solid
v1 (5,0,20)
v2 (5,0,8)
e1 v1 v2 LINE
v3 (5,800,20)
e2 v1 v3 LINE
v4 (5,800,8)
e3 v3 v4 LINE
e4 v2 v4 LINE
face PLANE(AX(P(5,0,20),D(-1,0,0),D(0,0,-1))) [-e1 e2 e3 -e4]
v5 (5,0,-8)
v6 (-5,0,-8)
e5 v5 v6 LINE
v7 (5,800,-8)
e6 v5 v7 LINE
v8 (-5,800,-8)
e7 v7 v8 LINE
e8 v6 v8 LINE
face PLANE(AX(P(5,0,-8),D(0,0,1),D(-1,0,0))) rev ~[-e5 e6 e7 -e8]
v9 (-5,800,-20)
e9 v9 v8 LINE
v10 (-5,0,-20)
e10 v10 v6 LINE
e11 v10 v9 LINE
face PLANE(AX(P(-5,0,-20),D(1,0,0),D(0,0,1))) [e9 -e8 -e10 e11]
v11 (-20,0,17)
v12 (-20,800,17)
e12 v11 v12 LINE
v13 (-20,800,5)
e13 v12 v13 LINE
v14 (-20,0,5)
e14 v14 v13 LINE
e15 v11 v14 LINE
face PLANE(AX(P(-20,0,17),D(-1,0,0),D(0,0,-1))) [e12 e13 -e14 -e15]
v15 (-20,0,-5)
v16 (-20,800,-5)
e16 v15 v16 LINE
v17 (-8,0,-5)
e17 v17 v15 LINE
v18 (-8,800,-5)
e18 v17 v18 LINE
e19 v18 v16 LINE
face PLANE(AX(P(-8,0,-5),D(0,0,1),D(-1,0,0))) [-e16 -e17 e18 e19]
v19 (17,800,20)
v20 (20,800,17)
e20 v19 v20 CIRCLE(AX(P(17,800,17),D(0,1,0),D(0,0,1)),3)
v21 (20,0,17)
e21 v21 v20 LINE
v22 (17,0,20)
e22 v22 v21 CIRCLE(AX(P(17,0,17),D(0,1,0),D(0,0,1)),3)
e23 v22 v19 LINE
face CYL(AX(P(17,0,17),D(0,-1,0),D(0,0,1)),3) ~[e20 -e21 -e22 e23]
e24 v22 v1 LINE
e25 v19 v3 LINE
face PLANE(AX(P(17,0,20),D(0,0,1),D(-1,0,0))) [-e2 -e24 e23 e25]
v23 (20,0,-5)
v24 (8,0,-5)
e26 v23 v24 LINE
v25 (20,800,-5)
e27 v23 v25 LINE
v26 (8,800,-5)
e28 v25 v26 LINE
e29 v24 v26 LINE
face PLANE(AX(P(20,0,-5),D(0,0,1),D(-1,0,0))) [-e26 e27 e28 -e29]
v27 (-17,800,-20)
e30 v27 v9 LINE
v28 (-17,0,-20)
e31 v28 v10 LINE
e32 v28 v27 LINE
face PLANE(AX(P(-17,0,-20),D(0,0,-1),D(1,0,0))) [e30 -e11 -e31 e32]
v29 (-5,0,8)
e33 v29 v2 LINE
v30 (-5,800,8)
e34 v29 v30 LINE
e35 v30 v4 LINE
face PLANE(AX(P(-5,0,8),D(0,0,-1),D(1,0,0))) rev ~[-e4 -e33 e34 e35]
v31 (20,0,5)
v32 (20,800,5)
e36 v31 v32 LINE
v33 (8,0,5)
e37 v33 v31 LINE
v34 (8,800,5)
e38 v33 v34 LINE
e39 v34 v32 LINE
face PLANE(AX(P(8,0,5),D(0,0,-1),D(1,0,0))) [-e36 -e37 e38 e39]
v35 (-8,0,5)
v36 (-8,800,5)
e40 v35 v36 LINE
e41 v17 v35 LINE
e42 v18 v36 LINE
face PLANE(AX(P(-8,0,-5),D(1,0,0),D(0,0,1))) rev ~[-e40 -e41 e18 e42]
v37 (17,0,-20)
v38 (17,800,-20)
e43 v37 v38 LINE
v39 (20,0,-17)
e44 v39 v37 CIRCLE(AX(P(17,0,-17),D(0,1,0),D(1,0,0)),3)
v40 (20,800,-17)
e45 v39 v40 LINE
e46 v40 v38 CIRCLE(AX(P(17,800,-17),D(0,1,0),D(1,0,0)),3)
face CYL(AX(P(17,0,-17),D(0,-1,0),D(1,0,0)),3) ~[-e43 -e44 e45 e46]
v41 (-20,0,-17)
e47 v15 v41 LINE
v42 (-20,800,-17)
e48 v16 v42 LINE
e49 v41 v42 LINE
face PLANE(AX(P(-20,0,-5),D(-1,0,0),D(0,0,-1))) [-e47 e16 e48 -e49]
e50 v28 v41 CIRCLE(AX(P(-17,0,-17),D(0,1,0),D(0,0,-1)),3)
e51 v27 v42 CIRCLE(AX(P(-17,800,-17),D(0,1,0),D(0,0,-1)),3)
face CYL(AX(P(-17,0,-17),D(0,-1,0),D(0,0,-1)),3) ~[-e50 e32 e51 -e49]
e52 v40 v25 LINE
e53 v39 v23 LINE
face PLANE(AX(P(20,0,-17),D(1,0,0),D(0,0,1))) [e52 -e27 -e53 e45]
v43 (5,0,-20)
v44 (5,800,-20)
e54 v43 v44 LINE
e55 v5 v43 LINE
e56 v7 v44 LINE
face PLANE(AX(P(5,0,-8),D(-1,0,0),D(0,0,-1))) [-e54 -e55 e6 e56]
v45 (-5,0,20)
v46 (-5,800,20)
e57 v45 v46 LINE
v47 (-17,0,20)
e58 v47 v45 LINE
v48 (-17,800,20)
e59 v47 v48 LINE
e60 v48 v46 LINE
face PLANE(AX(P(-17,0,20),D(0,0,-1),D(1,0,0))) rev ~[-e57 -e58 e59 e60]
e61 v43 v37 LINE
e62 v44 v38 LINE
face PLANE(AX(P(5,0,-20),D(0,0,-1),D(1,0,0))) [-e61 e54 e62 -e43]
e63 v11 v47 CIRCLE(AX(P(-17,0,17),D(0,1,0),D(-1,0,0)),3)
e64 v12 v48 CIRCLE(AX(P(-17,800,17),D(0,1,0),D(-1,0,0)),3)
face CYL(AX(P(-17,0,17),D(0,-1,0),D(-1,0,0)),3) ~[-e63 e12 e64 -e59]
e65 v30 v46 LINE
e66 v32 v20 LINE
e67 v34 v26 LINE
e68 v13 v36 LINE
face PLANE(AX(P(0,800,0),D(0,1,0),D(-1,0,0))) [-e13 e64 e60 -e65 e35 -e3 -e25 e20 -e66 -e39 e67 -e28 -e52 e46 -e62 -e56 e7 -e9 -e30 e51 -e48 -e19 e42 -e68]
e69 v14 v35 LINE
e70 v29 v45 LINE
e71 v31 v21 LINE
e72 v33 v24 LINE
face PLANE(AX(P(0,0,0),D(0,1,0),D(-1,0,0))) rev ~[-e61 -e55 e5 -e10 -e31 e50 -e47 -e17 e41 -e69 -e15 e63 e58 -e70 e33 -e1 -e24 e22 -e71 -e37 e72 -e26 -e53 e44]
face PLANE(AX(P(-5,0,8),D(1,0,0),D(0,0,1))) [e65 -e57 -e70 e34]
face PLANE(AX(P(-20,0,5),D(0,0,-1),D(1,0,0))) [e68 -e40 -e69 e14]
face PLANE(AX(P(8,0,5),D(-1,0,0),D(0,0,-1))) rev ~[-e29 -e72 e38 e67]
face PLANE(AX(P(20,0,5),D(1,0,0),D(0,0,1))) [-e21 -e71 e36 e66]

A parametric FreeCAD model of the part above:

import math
import FreeCAD as App
import Part
import Sketcher
Q = App.Units.Quantity

doc = App.newDocument("Part")
body = doc.addObject("PartDesign::Body", "Body")

# Sketch on XZ plane
sketch1 = body.newObject("Sketcher::SketchObject", "Sketch")
sketch1.AttachmentSupport = (doc.getObject("XZ_Plane"), [""])
sketch1.MapMode = "FlatFace"
sketch1.addGeometry([
    Part.LineSegment(App.Vector(5, 8, 0), App.Vector(5, 20, 0)),  # 0
    Part.LineSegment(App.Vector(5, 20, 0), App.Vector(17, 20, 0)),  # 1
    Part.ArcOfCircle(Part.Circle(App.Vector(17, 17, 0), App.Vector(0, 0, 1), 3), math.radians(0), math.radians(90)),  # 2
    Part.LineSegment(App.Vector(20, 17, 0), App.Vector(20, 5, 0)),  # 3
    Part.LineSegment(App.Vector(20, 5, 0), App.Vector(8, 5, 0)),  # 4
    Part.LineSegment(App.Vector(8, 5, 0), App.Vector(8, -5, 0)),  # 5
    Part.LineSegment(App.Vector(8, -5, 0), App.Vector(20, -5, 0)),  # 6
    Part.LineSegment(App.Vector(20, -5, 0), App.Vector(20, -17, 0)),  # 7
    Part.ArcOfCircle(Part.Circle(App.Vector(17, -17, 0), App.Vector(0, 0, 1), 3), math.radians(-90), math.radians(0)),  # 8
    Part.LineSegment(App.Vector(17, -20, 0), App.Vector(5, -20, 0)),  # 9
    Part.LineSegment(App.Vector(5, -20, 0), App.Vector(5, -8, 0)),  # 10
    Part.LineSegment(App.Vector(5, -8, 0), App.Vector(-5, -8, 0)),  # 11
    Part.LineSegment(App.Vector(-5, -8, 0), App.Vector(-5, -20, 0)),  # 12
    Part.LineSegment(App.Vector(-5, -20, 0), App.Vector(-17, -20, 0)),  # 13
    Part.ArcOfCircle(Part.Circle(App.Vector(-17, -17, 0), App.Vector(0, 0, 1), 3), math.radians(180), math.radians(270)),  # 14
    Part.LineSegment(App.Vector(-20, -17, 0), App.Vector(-20, -5, 0)),  # 15
    Part.LineSegment(App.Vector(-20, -5, 0), App.Vector(-8, -5, 0)),  # 16
    Part.LineSegment(App.Vector(-8, -5, 0), App.Vector(-8, 5, 0)),  # 17
    Part.LineSegment(App.Vector(-8, 5, 0), App.Vector(-20, 5, 0)),  # 18
    Part.LineSegment(App.Vector(-20, 5, 0), App.Vector(-20, 17, 0)),  # 19
    Part.ArcOfCircle(Part.Circle(App.Vector(-17, 17, 0), App.Vector(0, 0, 1), 3), math.radians(90), math.radians(180)),  # 20
    Part.LineSegment(App.Vector(-17, 20, 0), App.Vector(-5, 20, 0)),  # 21
    Part.LineSegment(App.Vector(-5, 20, 0), App.Vector(-5, 8, 0)),  # 22
    Part.LineSegment(App.Vector(-5, 8, 0), App.Vector(5, 8, 0)),  # 23
], False)
sketch1.addConstraint([
    Sketcher.Constraint("Coincident", 0, 2, 1, 1),
    Sketcher.Constraint("Tangent", 1, 2, 2, 2),
    Sketcher.Constraint("Tangent", 2, 1, 3, 1),
    Sketcher.Constraint("Coincident", 3, 2, 4, 1),
    Sketcher.Constraint("Coincident", 4, 2, 5, 1),
    Sketcher.Constraint("Coincident", 5, 2, 6, 1),
    Sketcher.Constraint("Coincident", 6, 2, 7, 1),
    Sketcher.Constraint("Tangent", 7, 2, 8, 2),
    Sketcher.Constraint("Tangent", 8, 1, 9, 1),
    Sketcher.Constraint("Coincident", 9, 2, 10, 1),
    Sketcher.Constraint("Coincident", 10, 2, 11, 1),
    Sketcher.Constraint("Coincident", 11, 2, 12, 1),
    Sketcher.Constraint("Coincident", 12, 2, 13, 1),
    Sketcher.Constraint("Tangent", 13, 2, 14, 2),
    Sketcher.Constraint("Tangent", 14, 1, 15, 1),
    Sketcher.Constraint("Coincident", 15, 2, 16, 1),
    Sketcher.Constraint("Coincident", 16, 2, 17, 1),
    Sketcher.Constraint("Coincident", 17, 2, 18, 1),
    Sketcher.Constraint("Coincident", 18, 2, 19, 1),
    Sketcher.Constraint("Tangent", 19, 2, 20, 2),
    Sketcher.Constraint("Tangent", 20, 1, 21, 1),
    Sketcher.Constraint("Coincident", 21, 2, 22, 1),
    Sketcher.Constraint("Coincident", 22, 2, 23, 1),
    Sketcher.Constraint("Coincident", 23, 2, 0, 1),
    Sketcher.Constraint("Vertical", 0),
    Sketcher.Constraint("Horizontal", 1),
    Sketcher.Constraint("Vertical", 3),
    Sketcher.Constraint("Horizontal", 4),
    Sketcher.Constraint("Vertical", 5),
    Sketcher.Constraint("Horizontal", 6),
    Sketcher.Constraint("Vertical", 7),
    Sketcher.Constraint("Horizontal", 9),
    Sketcher.Constraint("Vertical", 10),
    Sketcher.Constraint("Horizontal", 11),
    Sketcher.Constraint("Vertical", 12),
    Sketcher.Constraint("Horizontal", 13),
    Sketcher.Constraint("Vertical", 15),
    Sketcher.Constraint("Horizontal", 16),
    Sketcher.Constraint("Vertical", 17),
    Sketcher.Constraint("Horizontal", 18),
    Sketcher.Constraint("Vertical", 19),
    Sketcher.Constraint("Horizontal", 21),
    Sketcher.Constraint("Vertical", 22),
    Sketcher.Constraint("Horizontal", 23),
    Sketcher.Constraint("Equal", 2, 8),
    Sketcher.Constraint("Equal", 8, 14),
    Sketcher.Constraint("Equal", 14, 20),
    Sketcher.Constraint("Symmetric", 2, 3, 14, 3, -1, 1),
    Sketcher.Constraint("Symmetric", 8, 3, 20, 3, -1, 1),
    Sketcher.Constraint("Symmetric", 4, 2, 16, 2, -1, 1),
    Sketcher.Constraint("Symmetric", 10, 2, 22, 2, -1, 1),
    Sketcher.Constraint("Symmetric", 8, 3, 14, 3, -2),
    Sketcher.Constraint("Horizontal", 6, 2, 15, 2),
    Sketcher.Constraint("Horizontal", 4, 2, 17, 2),
    Sketcher.Constraint("Vertical", 0, 2, 9, 2),
    Sketcher.Constraint("Vertical", 12, 2, 21, 2),
    Sketcher.Constraint("Equal", 1, 4),
    Sketcher.Constraint("Equal", 21, 0),
    Sketcher.Constraint("Equal", 0, 3),
    Sketcher.Constraint("Equal", 23, 5),
    Sketcher.Constraint("Radius", 2, Q("3 mm")),
    Sketcher.Constraint("DistanceX", 1, 1, 1, 2, Q("12 mm")),
    Sketcher.Constraint("DistanceX", 11, 2, 11, 1, Q("10 mm")),
])
pad1 = body.newObject("PartDesign::Pad", "Pad")
pad1.Profile = sketch1
pad1.Length = 800
pad1.Reversed = True

doc.recompute()
